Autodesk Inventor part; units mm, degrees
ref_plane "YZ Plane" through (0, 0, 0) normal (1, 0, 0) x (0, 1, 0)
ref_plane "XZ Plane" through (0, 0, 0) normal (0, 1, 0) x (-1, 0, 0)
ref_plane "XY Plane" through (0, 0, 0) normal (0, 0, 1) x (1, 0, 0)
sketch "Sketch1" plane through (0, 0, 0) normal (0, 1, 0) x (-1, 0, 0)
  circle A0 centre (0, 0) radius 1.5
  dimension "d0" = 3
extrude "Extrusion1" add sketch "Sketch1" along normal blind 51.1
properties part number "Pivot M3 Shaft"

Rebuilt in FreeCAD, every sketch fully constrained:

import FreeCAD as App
import Part
import Sketcher

doc = App.newDocument("Part")
body = doc.addObject("PartDesign::Body", "Body")

sketch1 = doc.addObject("Sketcher::SketchObject", "Sketch")
body.addObject(sketch1)
sketch1.AttachmentSupport = (doc.XZ_Plane, [""])
sketch1.MapMode = "FlatFace"
sketch1.addGeometry(Part.Circle(App.Vector(0, 0, 0), App.Vector(0, 0, 1), 1.5), False)
sketch1.addConstraint(Sketcher.Constraint("Coincident", 0, 3, -1, 1))
sketch1.addConstraint(Sketcher.Constraint("Diameter", 0, 3.0))
pad1 = doc.addObject("PartDesign::Pad", "Pad")
body.addObject(pad1)
pad1.Profile = sketch1
pad1.Length = 51.1
pad1.Reversed = True

doc.recompute()
